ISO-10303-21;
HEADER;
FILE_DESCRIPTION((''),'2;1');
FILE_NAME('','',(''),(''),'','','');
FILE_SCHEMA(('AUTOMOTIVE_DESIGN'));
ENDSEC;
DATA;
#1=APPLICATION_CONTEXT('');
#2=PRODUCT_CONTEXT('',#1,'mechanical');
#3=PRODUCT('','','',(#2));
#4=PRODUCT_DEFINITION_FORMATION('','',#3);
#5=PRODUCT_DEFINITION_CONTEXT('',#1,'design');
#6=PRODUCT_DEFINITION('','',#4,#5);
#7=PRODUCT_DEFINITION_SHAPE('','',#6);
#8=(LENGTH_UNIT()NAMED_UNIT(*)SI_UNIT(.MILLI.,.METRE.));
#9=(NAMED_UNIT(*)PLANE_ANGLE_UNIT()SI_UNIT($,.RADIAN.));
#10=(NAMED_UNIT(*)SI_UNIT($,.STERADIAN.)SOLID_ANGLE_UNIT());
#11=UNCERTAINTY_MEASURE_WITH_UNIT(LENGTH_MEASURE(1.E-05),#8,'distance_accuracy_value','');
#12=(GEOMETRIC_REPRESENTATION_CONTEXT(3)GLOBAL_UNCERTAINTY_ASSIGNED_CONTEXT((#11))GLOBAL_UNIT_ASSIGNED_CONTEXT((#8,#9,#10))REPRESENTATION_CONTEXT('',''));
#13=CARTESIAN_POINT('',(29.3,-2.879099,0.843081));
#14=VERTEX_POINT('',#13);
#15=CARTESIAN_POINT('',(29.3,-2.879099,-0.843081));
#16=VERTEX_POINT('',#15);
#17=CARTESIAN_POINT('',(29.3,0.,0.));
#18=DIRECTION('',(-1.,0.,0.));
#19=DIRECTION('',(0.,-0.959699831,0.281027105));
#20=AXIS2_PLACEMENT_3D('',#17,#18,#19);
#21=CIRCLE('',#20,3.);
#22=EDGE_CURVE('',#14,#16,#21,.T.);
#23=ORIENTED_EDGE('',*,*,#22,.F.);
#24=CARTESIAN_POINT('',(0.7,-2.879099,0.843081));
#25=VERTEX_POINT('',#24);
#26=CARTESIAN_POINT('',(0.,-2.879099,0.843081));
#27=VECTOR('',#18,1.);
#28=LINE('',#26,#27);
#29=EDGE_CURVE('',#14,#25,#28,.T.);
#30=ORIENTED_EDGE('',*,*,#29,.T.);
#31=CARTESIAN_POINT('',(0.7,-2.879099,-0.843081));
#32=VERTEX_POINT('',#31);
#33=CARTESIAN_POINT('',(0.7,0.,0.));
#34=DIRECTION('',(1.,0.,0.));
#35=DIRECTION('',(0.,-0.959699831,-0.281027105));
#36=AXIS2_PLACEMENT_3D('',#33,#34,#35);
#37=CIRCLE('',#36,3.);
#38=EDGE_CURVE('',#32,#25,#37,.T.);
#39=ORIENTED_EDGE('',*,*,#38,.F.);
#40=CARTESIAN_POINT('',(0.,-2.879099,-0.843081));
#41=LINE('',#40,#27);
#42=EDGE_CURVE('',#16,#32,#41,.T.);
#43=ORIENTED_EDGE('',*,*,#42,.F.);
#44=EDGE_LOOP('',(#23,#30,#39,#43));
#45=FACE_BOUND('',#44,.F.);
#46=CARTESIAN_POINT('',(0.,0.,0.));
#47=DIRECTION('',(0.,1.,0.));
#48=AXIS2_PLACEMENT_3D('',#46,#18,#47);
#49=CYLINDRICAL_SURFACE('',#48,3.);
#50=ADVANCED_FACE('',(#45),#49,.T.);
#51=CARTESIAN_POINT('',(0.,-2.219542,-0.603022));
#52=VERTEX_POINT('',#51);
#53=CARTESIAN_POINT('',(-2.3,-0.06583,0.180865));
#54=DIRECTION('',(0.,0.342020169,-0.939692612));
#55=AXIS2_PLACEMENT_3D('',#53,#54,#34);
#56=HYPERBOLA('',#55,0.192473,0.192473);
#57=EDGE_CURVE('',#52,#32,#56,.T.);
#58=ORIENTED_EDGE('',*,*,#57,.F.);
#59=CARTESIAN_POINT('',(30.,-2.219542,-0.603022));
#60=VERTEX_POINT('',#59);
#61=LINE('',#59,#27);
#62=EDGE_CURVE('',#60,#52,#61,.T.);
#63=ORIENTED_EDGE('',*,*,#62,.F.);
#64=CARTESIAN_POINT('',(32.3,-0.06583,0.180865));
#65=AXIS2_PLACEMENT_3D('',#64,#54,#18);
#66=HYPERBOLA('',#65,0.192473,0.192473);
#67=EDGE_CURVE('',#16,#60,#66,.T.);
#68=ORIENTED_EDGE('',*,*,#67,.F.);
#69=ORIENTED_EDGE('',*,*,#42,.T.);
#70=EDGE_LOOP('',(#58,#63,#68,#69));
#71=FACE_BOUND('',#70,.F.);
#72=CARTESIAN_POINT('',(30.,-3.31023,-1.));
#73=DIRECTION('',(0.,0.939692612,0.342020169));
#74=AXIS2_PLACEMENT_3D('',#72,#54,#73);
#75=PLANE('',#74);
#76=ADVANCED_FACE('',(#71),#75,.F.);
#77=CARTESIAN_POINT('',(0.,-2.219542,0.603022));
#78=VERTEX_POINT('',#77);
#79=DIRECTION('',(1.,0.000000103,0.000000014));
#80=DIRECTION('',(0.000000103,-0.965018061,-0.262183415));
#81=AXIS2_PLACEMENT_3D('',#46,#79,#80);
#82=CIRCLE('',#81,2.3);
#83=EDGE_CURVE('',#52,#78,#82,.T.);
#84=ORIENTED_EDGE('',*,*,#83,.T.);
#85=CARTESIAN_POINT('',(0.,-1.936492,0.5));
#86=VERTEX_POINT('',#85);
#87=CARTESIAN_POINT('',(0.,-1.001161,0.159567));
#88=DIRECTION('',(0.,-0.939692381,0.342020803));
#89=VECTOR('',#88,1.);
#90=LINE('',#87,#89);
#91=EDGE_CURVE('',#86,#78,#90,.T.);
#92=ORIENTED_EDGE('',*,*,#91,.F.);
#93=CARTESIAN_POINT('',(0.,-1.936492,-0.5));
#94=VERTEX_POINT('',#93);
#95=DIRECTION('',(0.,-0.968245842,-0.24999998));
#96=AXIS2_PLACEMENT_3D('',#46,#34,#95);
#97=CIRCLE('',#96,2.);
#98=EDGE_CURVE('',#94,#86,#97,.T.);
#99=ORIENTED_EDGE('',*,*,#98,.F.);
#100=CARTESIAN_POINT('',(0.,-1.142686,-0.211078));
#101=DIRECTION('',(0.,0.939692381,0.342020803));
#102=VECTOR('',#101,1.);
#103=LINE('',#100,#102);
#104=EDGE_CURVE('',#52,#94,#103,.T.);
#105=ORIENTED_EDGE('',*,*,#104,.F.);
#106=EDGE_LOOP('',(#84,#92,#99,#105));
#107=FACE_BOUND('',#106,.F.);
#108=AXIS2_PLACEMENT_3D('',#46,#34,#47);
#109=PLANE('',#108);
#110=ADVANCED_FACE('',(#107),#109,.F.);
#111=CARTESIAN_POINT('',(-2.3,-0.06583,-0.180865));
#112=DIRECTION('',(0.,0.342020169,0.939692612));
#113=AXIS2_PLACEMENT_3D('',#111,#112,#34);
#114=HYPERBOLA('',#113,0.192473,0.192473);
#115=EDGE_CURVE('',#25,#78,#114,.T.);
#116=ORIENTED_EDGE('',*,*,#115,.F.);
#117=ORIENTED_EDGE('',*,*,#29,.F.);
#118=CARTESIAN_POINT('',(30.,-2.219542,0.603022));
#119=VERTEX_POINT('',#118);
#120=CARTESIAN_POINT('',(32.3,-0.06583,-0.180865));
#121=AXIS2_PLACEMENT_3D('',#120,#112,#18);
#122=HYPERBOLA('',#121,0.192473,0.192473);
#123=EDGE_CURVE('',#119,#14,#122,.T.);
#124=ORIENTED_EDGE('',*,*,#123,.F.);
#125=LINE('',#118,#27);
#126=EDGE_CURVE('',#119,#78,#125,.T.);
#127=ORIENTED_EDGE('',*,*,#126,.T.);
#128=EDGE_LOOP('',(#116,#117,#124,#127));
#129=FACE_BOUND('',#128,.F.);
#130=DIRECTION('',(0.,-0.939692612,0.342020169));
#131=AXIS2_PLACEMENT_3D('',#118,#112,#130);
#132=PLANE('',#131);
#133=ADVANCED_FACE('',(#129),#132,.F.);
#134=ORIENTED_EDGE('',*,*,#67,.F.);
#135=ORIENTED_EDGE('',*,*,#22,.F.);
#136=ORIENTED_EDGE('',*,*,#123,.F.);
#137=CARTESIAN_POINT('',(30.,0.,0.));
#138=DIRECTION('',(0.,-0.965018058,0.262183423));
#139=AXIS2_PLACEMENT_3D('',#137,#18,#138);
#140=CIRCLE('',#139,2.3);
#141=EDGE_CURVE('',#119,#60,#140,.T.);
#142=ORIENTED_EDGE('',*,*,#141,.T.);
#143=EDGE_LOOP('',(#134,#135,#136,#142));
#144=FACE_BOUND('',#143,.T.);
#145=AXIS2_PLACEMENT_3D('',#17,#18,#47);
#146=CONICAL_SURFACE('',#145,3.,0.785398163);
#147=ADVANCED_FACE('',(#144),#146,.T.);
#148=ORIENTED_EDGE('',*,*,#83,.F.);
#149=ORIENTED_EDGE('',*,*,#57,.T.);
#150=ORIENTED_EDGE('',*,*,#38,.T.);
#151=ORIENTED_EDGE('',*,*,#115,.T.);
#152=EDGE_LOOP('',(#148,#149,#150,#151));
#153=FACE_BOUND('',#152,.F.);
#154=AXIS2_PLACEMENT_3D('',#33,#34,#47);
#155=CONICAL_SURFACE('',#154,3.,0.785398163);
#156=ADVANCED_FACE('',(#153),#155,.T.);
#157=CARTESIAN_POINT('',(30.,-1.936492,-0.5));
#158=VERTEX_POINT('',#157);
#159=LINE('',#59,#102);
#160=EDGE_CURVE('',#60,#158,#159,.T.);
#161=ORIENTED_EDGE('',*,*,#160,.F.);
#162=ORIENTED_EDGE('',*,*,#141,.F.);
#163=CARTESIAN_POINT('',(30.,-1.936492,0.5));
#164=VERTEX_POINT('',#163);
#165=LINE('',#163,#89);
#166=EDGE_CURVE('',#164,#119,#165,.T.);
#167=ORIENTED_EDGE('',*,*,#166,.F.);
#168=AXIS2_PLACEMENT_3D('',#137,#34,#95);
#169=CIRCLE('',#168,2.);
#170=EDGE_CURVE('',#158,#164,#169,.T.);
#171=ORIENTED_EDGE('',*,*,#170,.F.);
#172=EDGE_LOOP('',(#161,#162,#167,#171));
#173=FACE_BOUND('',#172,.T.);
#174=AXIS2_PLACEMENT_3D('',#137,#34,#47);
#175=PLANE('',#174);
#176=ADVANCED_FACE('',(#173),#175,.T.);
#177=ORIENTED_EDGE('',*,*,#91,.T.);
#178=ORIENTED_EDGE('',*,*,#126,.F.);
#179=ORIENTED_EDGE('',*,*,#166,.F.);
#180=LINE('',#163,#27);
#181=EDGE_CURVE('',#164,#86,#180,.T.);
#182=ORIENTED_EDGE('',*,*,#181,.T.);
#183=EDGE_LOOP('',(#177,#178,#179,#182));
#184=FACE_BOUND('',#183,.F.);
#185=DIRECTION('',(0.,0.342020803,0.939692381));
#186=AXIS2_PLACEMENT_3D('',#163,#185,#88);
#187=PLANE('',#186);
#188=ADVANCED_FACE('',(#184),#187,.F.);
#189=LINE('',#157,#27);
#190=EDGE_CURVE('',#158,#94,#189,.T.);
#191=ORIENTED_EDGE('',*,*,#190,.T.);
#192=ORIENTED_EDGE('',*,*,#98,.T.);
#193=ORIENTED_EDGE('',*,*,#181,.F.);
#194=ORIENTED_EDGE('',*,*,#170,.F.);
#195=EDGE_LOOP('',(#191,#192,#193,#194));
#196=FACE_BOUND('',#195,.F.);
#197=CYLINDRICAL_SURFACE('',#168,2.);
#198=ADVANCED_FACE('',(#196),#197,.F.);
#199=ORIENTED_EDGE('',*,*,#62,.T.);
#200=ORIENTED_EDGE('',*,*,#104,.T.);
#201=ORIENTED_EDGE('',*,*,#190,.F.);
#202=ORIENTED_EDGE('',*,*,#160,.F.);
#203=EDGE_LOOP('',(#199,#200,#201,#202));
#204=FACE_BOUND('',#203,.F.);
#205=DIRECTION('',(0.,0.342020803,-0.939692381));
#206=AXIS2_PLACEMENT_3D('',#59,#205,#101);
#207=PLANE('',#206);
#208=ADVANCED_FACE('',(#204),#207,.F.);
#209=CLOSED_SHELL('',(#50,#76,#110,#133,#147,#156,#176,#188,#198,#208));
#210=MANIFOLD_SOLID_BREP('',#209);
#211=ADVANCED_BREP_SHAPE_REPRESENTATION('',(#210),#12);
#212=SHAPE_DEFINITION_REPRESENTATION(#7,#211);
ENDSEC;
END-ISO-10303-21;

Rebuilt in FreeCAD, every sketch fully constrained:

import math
import FreeCAD as App
import Part
import Sketcher
Q = App.Units.Quantity


def edges_at(feature, points):
    """Names of the edges that pass closest to the given points."""
    edges = feature.Shape.Edges
    near = lambda p: min(range(len(edges)), key=lambda i: edges[i].distToShape(Part.Vertex(*p))[0])
    return sorted({f"Edge{near(p) + 1}" for p in points})

doc = App.newDocument("Part")
body = doc.addObject("PartDesign::Body", "Body")

# Sketch on YZ plane
sketch1 = doc.addObject("Sketcher::SketchObject", "Sketch")
body.addObject(sketch1)
sketch1.AttachmentSupport = (doc.YZ_Plane, [""])
sketch1.MapMode = "FlatFace"
sketch1.addGeometry(Part.Circle(App.Vector(0, 0, 0), App.Vector(0, 0, 1), 3), False)
sketch1.addConstraint([
    Sketcher.Constraint("Coincident", 0, 3, -1, 1),
    Sketcher.Constraint("Diameter", 0, 6.0),
])
pad1 = doc.addObject("PartDesign::Pad", "Pad")
body.addObject(pad1)
pad1.Profile = sketch1
pad1.Length = 30
doc.recompute()

chamfer = doc.addObject("PartDesign::Chamfer", "Chamfer")
body.addObject(chamfer)
chamfer.Base = (pad1, edges_at(pad1, [(30, -3, 0), (0, -3, 0)]))
chamfer.Size = 0.7

# Sketch on YZ plane
sketch2 = doc.addObject("Sketcher::SketchObject", "Sketch001")
body.addObject(sketch2)
sketch2.AttachmentSupport = (doc.YZ_Plane, [""])
sketch2.MapMode = "FlatFace"
sketch2.AttachmentOffset = App.Placement(App.Vector(0, 0, 30), App.Rotation())
sketch2.addGeometry([
    Part.LineSegment(App.Vector(-3.31, -1, 0), App.Vector(-2.22, -0.6, 0)),  # 0
    Part.LineSegment(App.Vector(-2.22, -0.6, 0), App.Vector(-1.94, -0.5, 0)),  # 1
    Part.ArcOfCircle(Part.Circle(App.Vector(0, 0, 0), App.Vector(0, 0, 1), 2), math.radians(-166), math.radians(166)),  # 2
    Part.LineSegment(App.Vector(-1.94, 0.5, 0), App.Vector(-2.22, 0.6, 0)),  # 3
    Part.LineSegment(App.Vector(-2.22, 0.6, 0), App.Vector(-3.31, 1, 0)),  # 4
    Part.LineSegment(App.Vector(-3.31, 1, 0), App.Vector(-3.31, -1, 0)),  # 5
], False)
sketch2.addConstraint([
    Sketcher.Constraint("Coincident", 0, 2, 1, 1),
    Sketcher.Constraint("Coincident", 1, 2, 2, 1),
    Sketcher.Constraint("Coincident", 2, 2, 3, 1),
    Sketcher.Constraint("Coincident", 3, 2, 4, 1),
    Sketcher.Constraint("Coincident", 4, 2, 5, 1),
    Sketcher.Constraint("Coincident", 5, 2, 0, 1),
    Sketcher.Constraint("Vertical", 5),
    Sketcher.Constraint("Coincident", 2, 3, -1, 1),
    Sketcher.Constraint("Symmetric", 0, 2, 3, 2, -1),
    Sketcher.Constraint("Parallel", 0, 1),
    Sketcher.Constraint("Parallel", 3, 4),
    Sketcher.Constraint("Vertical", 1, 2, 2, 2),
    Sketcher.Constraint("Radius", 2, 2.0),
    Sketcher.Constraint("DistanceY", 5, 2, 5, 1, 2.0),
    Sketcher.Constraint("Angle", 0, Q("20.000002 deg")),
    Sketcher.Constraint("DistanceY", 1, 2, 2, 2, 1.0),
    Sketcher.Constraint("DistanceY", 0, 2, -1, 1, 0.603022),
])
pocket1 = doc.addObject("PartDesign::Pocket", "Pocket")
body.addObject(pocket1)
pocket1.Profile = sketch2
pocket1.Length = 31

doc.recompute()
